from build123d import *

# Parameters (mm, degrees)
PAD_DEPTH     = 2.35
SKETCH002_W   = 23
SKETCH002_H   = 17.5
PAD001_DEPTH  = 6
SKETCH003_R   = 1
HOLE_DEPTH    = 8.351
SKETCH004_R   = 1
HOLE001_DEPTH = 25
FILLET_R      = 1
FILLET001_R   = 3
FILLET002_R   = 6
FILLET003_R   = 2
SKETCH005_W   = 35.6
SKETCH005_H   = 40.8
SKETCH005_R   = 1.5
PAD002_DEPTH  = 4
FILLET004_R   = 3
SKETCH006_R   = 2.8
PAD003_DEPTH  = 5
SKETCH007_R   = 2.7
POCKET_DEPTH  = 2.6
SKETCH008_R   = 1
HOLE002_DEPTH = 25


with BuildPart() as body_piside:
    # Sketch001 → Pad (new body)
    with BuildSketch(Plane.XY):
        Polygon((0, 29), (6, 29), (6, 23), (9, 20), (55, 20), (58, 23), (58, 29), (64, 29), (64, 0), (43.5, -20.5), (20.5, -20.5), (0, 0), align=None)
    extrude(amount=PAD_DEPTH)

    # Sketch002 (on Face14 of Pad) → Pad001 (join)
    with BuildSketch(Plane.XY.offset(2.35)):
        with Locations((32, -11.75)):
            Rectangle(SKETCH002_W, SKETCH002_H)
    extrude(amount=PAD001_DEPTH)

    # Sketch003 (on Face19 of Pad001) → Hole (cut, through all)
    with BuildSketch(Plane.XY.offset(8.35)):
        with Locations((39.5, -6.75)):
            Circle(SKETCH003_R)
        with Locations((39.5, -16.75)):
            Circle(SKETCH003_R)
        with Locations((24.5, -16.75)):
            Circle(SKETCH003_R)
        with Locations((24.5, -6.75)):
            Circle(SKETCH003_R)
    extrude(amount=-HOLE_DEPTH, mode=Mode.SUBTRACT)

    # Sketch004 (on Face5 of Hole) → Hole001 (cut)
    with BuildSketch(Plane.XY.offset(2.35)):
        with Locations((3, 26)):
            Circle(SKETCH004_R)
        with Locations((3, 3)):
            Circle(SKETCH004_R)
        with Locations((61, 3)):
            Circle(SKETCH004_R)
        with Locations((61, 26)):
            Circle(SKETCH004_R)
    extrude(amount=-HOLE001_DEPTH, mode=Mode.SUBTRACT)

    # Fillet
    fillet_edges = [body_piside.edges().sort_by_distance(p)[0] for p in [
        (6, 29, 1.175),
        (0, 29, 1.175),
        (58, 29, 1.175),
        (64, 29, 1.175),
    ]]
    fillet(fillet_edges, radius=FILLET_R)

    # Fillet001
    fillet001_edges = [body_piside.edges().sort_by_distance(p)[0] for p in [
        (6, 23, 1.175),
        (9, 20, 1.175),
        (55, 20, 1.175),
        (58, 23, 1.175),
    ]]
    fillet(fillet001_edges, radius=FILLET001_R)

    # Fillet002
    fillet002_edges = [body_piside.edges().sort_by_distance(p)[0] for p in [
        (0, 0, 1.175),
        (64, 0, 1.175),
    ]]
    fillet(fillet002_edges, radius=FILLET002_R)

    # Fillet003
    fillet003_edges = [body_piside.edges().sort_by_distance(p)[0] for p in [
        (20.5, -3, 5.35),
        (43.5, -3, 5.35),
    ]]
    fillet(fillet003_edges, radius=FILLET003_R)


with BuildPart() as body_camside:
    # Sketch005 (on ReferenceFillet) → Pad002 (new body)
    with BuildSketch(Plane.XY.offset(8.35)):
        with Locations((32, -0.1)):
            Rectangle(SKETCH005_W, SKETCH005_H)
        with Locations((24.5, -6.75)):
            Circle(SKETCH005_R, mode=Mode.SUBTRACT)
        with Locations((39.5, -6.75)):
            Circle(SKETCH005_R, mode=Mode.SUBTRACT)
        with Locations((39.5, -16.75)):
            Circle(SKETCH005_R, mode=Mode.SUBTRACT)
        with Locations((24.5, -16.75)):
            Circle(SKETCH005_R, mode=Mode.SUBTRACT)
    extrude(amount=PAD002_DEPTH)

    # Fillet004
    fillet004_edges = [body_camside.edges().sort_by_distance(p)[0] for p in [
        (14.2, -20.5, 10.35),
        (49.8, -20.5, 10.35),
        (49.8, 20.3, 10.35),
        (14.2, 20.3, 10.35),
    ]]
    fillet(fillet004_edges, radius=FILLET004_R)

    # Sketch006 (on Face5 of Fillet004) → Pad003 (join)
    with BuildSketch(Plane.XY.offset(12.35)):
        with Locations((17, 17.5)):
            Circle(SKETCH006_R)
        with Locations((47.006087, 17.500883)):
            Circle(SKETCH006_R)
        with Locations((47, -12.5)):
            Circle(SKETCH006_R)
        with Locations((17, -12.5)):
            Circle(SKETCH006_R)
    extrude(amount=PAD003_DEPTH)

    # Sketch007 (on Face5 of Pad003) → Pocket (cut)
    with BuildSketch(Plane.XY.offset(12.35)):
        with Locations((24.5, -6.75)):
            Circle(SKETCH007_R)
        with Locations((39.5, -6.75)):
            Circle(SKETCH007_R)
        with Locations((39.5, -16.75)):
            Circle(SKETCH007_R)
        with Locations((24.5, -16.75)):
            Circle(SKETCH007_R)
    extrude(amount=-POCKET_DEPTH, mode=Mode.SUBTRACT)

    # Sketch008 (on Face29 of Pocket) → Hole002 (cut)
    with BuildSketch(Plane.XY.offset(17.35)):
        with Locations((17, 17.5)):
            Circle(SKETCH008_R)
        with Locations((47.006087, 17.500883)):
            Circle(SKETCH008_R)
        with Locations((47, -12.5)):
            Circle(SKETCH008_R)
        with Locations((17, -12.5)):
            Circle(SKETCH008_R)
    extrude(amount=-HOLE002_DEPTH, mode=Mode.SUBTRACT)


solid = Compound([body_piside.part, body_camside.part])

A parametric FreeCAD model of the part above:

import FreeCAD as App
import Part
import Sketcher

V = App.Vector


def edges_at(feature, points):
    """Names of the edges that pass closest to the given points."""
    edges = feature.Shape.Edges
    near = lambda p: min(range(len(edges)), key=lambda i: edges[i].distToShape(Part.Vertex(*p))[0])
    return sorted({f"Edge{near(p) + 1}" for p in points})


def add_polygon(sketch, points):
    """Adds a closed chain of lines whose ends are joined by coincident constraints."""
    first, n = sketch.GeometryCount, len(points)
    for a, b in zip(points, points[1:] + points[:1]):
        sketch.addGeometry(Part.LineSegment(App.Vector(*a, 0), App.Vector(*b, 0)), False)
    for i in range(n):
        sketch.addConstraint(Sketcher.Constraint("Coincident", first + i, 2, first + (i + 1) % n, 1))

doc = App.newDocument("Part")
body = doc.addObject("PartDesign::Body", "Body")

# Sketch on XY plane
sketch1 = body.newObject("Sketcher::SketchObject", "Sketch")
sketch1.AttachmentSupport = (doc.getObject("XY_Plane"), [""])
sketch1.MapMode = "FlatFace"
add_polygon(sketch1, [(6, 29), (0, 29), (0, 0), (20.5, -20.5), (43.5, -20.5), (64, 0), (64, 29), (58, 29), (58, 23), (55, 20), (9, 20), (6, 23)])  # lines 0-11
sketch1.addConstraint([
    Sketcher.Constraint("Horizontal", 0),
    Sketcher.Constraint("Vertical", 1),
    Sketcher.Constraint("Horizontal", 3),
    Sketcher.Constraint("Vertical", 5),
    Sketcher.Constraint("Horizontal", 6),
    Sketcher.Constraint("Vertical", 7),
    Sketcher.Constraint("Horizontal", 9),
    Sketcher.Constraint("Vertical", 11),
    Sketcher.Constraint("Coincident", 1, 2, -1, 1),
    Sketcher.Constraint("PointOnObject", 4, 2, -1),
    Sketcher.Constraint("Perpendicular", 2, 4),
    Sketcher.Constraint("Parallel", 4, 8),
    Sketcher.Constraint("Perpendicular", 8, 10),
    Sketcher.Constraint("Horizontal", 0, 2, 5, 2),
    Sketcher.Constraint("Horizontal", 7, 2, 10, 2),
    Sketcher.Constraint("Equal", 0, 6),
    Sketcher.Constraint("Equal", 6, 7),
    Sketcher.Constraint("Equal", 2, 4),
    Sketcher.Constraint("DistanceX", 0, 2, 0, 1, 6.0),
    Sketcher.Constraint("DistanceX", 3, 1, 3, 2, 23.0),
    Sketcher.Constraint("DistanceX", 9, 2, 9, 1, 46.0),
    Sketcher.Constraint("DistanceY", 1, 2, 1, 1, 29.0),
    Sketcher.Constraint("DistanceX", -1, 1, 4, 2, 64.0),
])
pad1 = body.newObject("PartDesign::Pad", "Pad")
pad1.Profile = sketch1
pad1.Length = 2.35

# Sketch on XY plane
sketch2 = body.newObject("Sketcher::SketchObject", "Sketch001")
sketch2.AttachmentSupport = (doc.getObject("XY_Plane"), [""])
sketch2.MapMode = "FlatFace"
sketch2.AttachmentOffset = App.Placement(V(0, 0, 2.35), App.Rotation())
add_polygon(sketch2, [(20, -3), (20, -20), (44, -20), (44, -3)])  # lines 0-3
sketch2.addConstraint([
    Sketcher.Constraint("Vertical", 0),
    Sketcher.Constraint("Horizontal", 1),
    Sketcher.Constraint("Vertical", 2),
    Sketcher.Constraint("Horizontal", 3),
    Sketcher.Constraint("DistanceX", 1, 1, 1, 2, 23.0),
    Sketcher.Constraint("DistanceY", 0, 2, 0, 1, 17.5),
    Sketcher.Constraint("DistanceY", 2, 2, -1, 1, 3.0),
    Sketcher.Constraint("DistanceX", -1, 1, 0, 2, 20.5),
])
pad2 = body.newObject("PartDesign::Pad", "Pad001")
pad2.Profile = sketch2
pad2.Length = 6

# Sketch on XY plane
sketch3 = body.newObject("Sketcher::SketchObject", "Sketch002")
sketch3.AttachmentSupport = (doc.getObject("XY_Plane"), [""])
sketch3.MapMode = "FlatFace"
sketch3.AttachmentOffset = App.Placement(V(0, 0, 8.35), App.Rotation())
sketch3.addGeometry([
    Part.Circle(V(39.5, -6.8, 0), V(0, 0, 1), 1),
    Part.Circle(V(39.5, -16.8, 0), V(0, 0, 1), 1),
    Part.Circle(V(24.5, -16.8, 0), V(0, 0, 1), 1),
    Part.Circle(V(24.5, -6.8, 0), V(0, 0, 1), 1),
], False)
sketch3.addConstraint([
    Sketcher.Constraint("Equal", 0, 1),
    Sketcher.Constraint("Equal", 1, 2),
    Sketcher.Constraint("Equal", 2, 3),
    Sketcher.Constraint("Horizontal", 1, 3, 2, 3),
    Sketcher.Constraint("Horizontal", 0, 3, 3, 3),
    Sketcher.Constraint("Vertical", 0, 3, 1, 3),
    Sketcher.Constraint("Vertical", 2, 3, 3, 3),
    Sketcher.Constraint("Diameter", 0, 2.0),
    Sketcher.Constraint("DistanceY", 1, 3, 0, 3, 10.0),
    Sketcher.Constraint("DistanceX", 2, 3, 1, 3, 15.0),
    Sketcher.Constraint("DistanceX", -1, 1, 0, 3, 39.5),
    Sketcher.Constraint("DistanceY", 0, 3, -1, 1, 6.75),
])
pocket1 = body.newObject("PartDesign::Pocket", "Pocket")
pocket1.Profile = sketch3
pocket1.Type = "ThroughAll"

# Sketch on XY plane
sketch4 = body.newObject("Sketcher::SketchObject", "Sketch003")
sketch4.AttachmentSupport = (doc.getObject("XY_Plane"), [""])
sketch4.MapMode = "FlatFace"
sketch4.AttachmentOffset = App.Placement(V(0, 0, 2.35), App.Rotation())
sketch4.addGeometry([
    Part.Circle(V(3, 26, 0), V(0, 0, 1), 1),
    Part.Circle(V(3, 3, 0), V(0, 0, 1), 1),
    Part.Circle(V(61, 3, 0), V(0, 0, 1), 1),
    Part.Circle(V(61, 26, 0), V(0, 0, 1), 1),
], False)
sketch4.addConstraint([
    Sketcher.Constraint("Equal", 0, 1),
    Sketcher.Constraint("Equal", 1, 2),
    Sketcher.Constraint("Equal", 2, 3),
    Sketcher.Constraint("Horizontal", 1, 3, 2, 3),
    Sketcher.Constraint("Horizontal", 0, 3, 3, 3),
    Sketcher.Constraint("Vertical", 0, 3, 1, 3),
    Sketcher.Constraint("Vertical", 2, 3, 3, 3),
    Sketcher.Constraint("Diameter", 0, 2.0),
    Sketcher.Constraint("DistanceX", -1, 1, 0, 3, 3.0),
    Sketcher.Constraint("DistanceY", -1, 1, 0, 3, 26.0),
    Sketcher.Constraint("DistanceY", -1, 1, 1, 3, 3.0),
    Sketcher.Constraint("DistanceX", -1, 1, 2, 3, 61.0),
])
pocket2 = body.newObject("PartDesign::Pocket", "Pocket001")
pocket2.Profile = sketch4
pocket2.Length = 25
doc.recompute()

fillet = body.newObject("PartDesign::Fillet", "Fillet")
fillet.Base = (pocket2, edges_at(pocket2, [
    (6, 29, 1.175),
    (0, 29, 1.175),
    (58, 29, 1.175),
    (64, 29, 1.175),
]))
fillet.Radius = 1
doc.recompute()

fillet2 = body.newObject("PartDesign::Fillet", "Fillet001")
fillet2.Base = (fillet, edges_at(fillet, [
    (6, 23, 1.175),
    (9, 20, 1.175),
    (55, 20, 1.175),
    (58, 23, 1.175),
]))
fillet2.Radius = 3
doc.recompute()

fillet3 = body.newObject("PartDesign::Fillet", "Fillet002")
fillet3.Base = (fillet2, edges_at(fillet2, [(0, 0, 1.175), (64, 0, 1.175)]))
fillet3.Radius = 6
doc.recompute()

fillet4 = body.newObject("PartDesign::Fillet", "Fillet003")
fillet4.Base = (fillet3, edges_at(fillet3, [(20.5, -3, 5.35), (43.5, -3, 5.35)]))
fillet4.Radius = 2
body2 = doc.addObject("PartDesign::Body", "Body001")

# Sketch on XY plane
sketch5 = body2.newObject("Sketcher::SketchObject", "Sketch004")
sketch5.AttachmentSupport = (doc.getObject("XY_Plane001"), [""])
sketch5.MapMode = "FlatFace"
sketch5.AttachmentOffset = App.Placement(V(0, 0, 8.35), App.Rotation())
add_polygon(sketch5, [(14.2, 20.3), (14.2, -20.5), (49.8, -20.5), (49.8, 20.3)])  # lines 0-3
sketch5.addGeometry(Part.Circle(V(24.5, -16.8, 0), V(0, 0, 1), 1.5), False)  # 4
sketch5.addGeometry(Part.Circle(V(39.5, -16.8, 0), V(0, 0, 1), 1.5), False)  # 5
sketch5.addGeometry(Part.Circle(V(24.5, -6.8, 0), V(0, 0, 1), 1.5), False)  # 6
sketch5.addGeometry(Part.Circle(V(39.5, -6.8, 0), V(0, 0, 1), 1.5), False)  # 7
sketch5.addConstraint([
    Sketcher.Constraint("Vertical", 0),
    Sketcher.Constraint("Horizontal", 1),
    Sketcher.Constraint("Vertical", 2),
    Sketcher.Constraint("Horizontal", 3),
    Sketcher.Constraint("Equal", 4, 5),
    Sketcher.Constraint("Equal", 5, 6),
    Sketcher.Constraint("Equal", 6, 7),
    Sketcher.Constraint("Horizontal", 4, 3, 5, 3),
    Sketcher.Constraint("Horizontal", 6, 3, 7, 3),
    Sketcher.Constraint("Vertical", 4, 3, 6, 3),
    Sketcher.Constraint("Vertical", 5, 3, 7, 3),
    Sketcher.Constraint("Diameter", 4, 3.0),
    Sketcher.Constraint("DistanceX", 1, 1, 1, 2, 35.6),
    Sketcher.Constraint("DistanceY", 0, 2, 0, 1, 40.8),
    Sketcher.Constraint("DistanceX", 4, 3, 5, 3, 15.0),
    Sketcher.Constraint("DistanceY", 4, 3, 6, 3, 10.0),
    Sketcher.Constraint("DistanceX", -1, 1, 4, 3, 24.5),
    Sketcher.Constraint("DistanceX", -1, 1, 0, 2, 14.2),
    Sketcher.Constraint("DistanceY", 0, 2, -1, 1, 20.5),
    Sketcher.Constraint("DistanceY", 4, 3, -1, 1, 16.75),
])
pad3 = body2.newObject("PartDesign::Pad", "Pad002")
pad3.Profile = sketch5
pad3.Length = 4
doc.recompute()

fillet5 = body2.newObject("PartDesign::Fillet", "Fillet004")
fillet5.Base = (pad3, edges_at(pad3, [
    (14.2, -20.5, 10.35),
    (49.8, -20.5, 10.35),
    (49.8, 20.3, 10.35),
    (14.2, 20.3, 10.35),
]))
fillet5.Radius = 3

# Sketch on XY plane
sketch6 = body2.newObject("Sketcher::SketchObject", "Sketch005")
sketch6.AttachmentSupport = (doc.getObject("XY_Plane001"), [""])
sketch6.MapMode = "FlatFace"
sketch6.AttachmentOffset = App.Placement(V(0, 0, 12.35), App.Rotation())
sketch6.addGeometry([
    Part.Circle(V(17, 17.5, 0), V(0, 0, 1), 2.8),
    Part.Circle(V(47, 17.5, 0), V(0, 0, 1), 2.8),
    Part.Circle(V(47, -12.5, 0), V(0, 0, 1), 2.8),
    Part.Circle(V(17, -12.5, 0), V(0, 0, 1), 2.8),
], False)
sketch6.addConstraint([
    Sketcher.Constraint("Equal", 0, 1),
    Sketcher.Constraint("Equal", 1, 2),
    Sketcher.Constraint("Equal", 2, 3),
    Sketcher.Constraint("Horizontal", 2, 3, 3, 3),
    Sketcher.Constraint("Vertical", 0, 3, 3, 3),
    Sketcher.Constraint("Diameter", 0, 5.6),
    Sketcher.Constraint("DistanceX", -1, 1, 0, 3, 17.0),
    Sketcher.Constraint("DistanceX", -1, 1, 2, 3, 47.0),
    Sketcher.Constraint("DistanceY", 2, 3, 0, 3, 30.0),
    Sketcher.Constraint("DistanceY", -1, 1, 0, 3, 17.5),
    Sketcher.Constraint("DistanceX", -1, 1, 1, 3, 47.006087),
    Sketcher.Constraint("DistanceY", -1, 1, 1, 3, 17.500883),
])
pad4 = body2.newObject("PartDesign::Pad", "Pad003")
pad4.Profile = sketch6
pad4.Length = 5

# Sketch on XY plane
sketch7 = body2.newObject("Sketcher::SketchObject", "Sketch006")
sketch7.AttachmentSupport = (doc.getObject("XY_Plane001"), [""])
sketch7.MapMode = "FlatFace"
sketch7.AttachmentOffset = App.Placement(V(0, 0, 12.35), App.Rotation())
sketch7.addGeometry([
    Part.Circle(V(24.5, -6.8, 0), V(0, 0, 1), 2.7),
    Part.Circle(V(39.5, -6.8, 0), V(0, 0, 1), 2.7),
    Part.Circle(V(39.5, -16.8, 0), V(0, 0, 1), 2.7),
    Part.Circle(V(24.5, -16.8, 0), V(0, 0, 1), 2.7),
], False)
sketch7.addConstraint([
    Sketcher.Constraint("Equal", 0, 1),
    Sketcher.Constraint("Equal", 1, 2),
    Sketcher.Constraint("Equal", 2, 3),
    Sketcher.Constraint("Horizontal", 0, 3, 1, 3),
    Sketcher.Constraint("Horizontal", 2, 3, 3, 3),
    Sketcher.Constraint("Vertical", 1, 3, 2, 3),
    Sketcher.Constraint("Vertical", 0, 3, 3, 3),
    Sketcher.Constraint("Diameter", 0, 5.4),
    Sketcher.Constraint("DistanceX", 0, 3, 1, 3, 15.0),
    Sketcher.Constraint("DistanceY", 2, 3, 1, 3, 10.0),
    Sketcher.Constraint("DistanceX", -1, 1, 0, 3, 24.5),
    Sketcher.Constraint("DistanceY", 0, 3, -1, 1, 6.75),
])
pocket3 = body2.newObject("PartDesign::Pocket", "Pocket002")
pocket3.Profile = sketch7
pocket3.Length = 2.6

# Sketch on XY plane
sketch8 = body2.newObject("Sketcher::SketchObject", "Sketch007")
sketch8.AttachmentSupport = (doc.getObject("XY_Plane001"), [""])
sketch8.MapMode = "FlatFace"
sketch8.AttachmentOffset = App.Placement(V(0, 0, 17.35), App.Rotation())
sketch8.addGeometry([
    Part.Circle(V(17, 17.5, 0), V(0, 0, 1), 1),
    Part.Circle(V(47, 17.5, 0), V(0, 0, 1), 1),
    Part.Circle(V(47, -12.5, 0), V(0, 0, 1), 1),
    Part.Circle(V(17, -12.5, 0), V(0, 0, 1), 1),
], False)
sketch8.addConstraint([
    Sketcher.Constraint("Equal", 0, 1),
    Sketcher.Constraint("Equal", 1, 2),
    Sketcher.Constraint("Equal", 2, 3),
    Sketcher.Constraint("Horizontal", 2, 3, 3, 3),
    Sketcher.Constraint("Vertical", 0, 3, 3, 3),
    Sketcher.Constraint("Diameter", 0, 2.0),
    Sketcher.Constraint("DistanceX", -1, 1, 0, 3, 17.0),
    Sketcher.Constraint("DistanceX", -1, 1, 2, 3, 47.0),
    Sketcher.Constraint("DistanceY", 2, 3, 0, 3, 30.0),
    Sketcher.Constraint("DistanceY", -1, 1, 0, 3, 17.5),
    Sketcher.Constraint("DistanceX", -1, 1, 1, 3, 47.006087),
    Sketcher.Constraint("DistanceY", -1, 1, 1, 3, 17.500883),
])
pocket4 = body2.newObject("PartDesign::Pocket", "Pocket003")
pocket4.Profile = sketch8
pocket4.Length = 25

doc.recompute()
